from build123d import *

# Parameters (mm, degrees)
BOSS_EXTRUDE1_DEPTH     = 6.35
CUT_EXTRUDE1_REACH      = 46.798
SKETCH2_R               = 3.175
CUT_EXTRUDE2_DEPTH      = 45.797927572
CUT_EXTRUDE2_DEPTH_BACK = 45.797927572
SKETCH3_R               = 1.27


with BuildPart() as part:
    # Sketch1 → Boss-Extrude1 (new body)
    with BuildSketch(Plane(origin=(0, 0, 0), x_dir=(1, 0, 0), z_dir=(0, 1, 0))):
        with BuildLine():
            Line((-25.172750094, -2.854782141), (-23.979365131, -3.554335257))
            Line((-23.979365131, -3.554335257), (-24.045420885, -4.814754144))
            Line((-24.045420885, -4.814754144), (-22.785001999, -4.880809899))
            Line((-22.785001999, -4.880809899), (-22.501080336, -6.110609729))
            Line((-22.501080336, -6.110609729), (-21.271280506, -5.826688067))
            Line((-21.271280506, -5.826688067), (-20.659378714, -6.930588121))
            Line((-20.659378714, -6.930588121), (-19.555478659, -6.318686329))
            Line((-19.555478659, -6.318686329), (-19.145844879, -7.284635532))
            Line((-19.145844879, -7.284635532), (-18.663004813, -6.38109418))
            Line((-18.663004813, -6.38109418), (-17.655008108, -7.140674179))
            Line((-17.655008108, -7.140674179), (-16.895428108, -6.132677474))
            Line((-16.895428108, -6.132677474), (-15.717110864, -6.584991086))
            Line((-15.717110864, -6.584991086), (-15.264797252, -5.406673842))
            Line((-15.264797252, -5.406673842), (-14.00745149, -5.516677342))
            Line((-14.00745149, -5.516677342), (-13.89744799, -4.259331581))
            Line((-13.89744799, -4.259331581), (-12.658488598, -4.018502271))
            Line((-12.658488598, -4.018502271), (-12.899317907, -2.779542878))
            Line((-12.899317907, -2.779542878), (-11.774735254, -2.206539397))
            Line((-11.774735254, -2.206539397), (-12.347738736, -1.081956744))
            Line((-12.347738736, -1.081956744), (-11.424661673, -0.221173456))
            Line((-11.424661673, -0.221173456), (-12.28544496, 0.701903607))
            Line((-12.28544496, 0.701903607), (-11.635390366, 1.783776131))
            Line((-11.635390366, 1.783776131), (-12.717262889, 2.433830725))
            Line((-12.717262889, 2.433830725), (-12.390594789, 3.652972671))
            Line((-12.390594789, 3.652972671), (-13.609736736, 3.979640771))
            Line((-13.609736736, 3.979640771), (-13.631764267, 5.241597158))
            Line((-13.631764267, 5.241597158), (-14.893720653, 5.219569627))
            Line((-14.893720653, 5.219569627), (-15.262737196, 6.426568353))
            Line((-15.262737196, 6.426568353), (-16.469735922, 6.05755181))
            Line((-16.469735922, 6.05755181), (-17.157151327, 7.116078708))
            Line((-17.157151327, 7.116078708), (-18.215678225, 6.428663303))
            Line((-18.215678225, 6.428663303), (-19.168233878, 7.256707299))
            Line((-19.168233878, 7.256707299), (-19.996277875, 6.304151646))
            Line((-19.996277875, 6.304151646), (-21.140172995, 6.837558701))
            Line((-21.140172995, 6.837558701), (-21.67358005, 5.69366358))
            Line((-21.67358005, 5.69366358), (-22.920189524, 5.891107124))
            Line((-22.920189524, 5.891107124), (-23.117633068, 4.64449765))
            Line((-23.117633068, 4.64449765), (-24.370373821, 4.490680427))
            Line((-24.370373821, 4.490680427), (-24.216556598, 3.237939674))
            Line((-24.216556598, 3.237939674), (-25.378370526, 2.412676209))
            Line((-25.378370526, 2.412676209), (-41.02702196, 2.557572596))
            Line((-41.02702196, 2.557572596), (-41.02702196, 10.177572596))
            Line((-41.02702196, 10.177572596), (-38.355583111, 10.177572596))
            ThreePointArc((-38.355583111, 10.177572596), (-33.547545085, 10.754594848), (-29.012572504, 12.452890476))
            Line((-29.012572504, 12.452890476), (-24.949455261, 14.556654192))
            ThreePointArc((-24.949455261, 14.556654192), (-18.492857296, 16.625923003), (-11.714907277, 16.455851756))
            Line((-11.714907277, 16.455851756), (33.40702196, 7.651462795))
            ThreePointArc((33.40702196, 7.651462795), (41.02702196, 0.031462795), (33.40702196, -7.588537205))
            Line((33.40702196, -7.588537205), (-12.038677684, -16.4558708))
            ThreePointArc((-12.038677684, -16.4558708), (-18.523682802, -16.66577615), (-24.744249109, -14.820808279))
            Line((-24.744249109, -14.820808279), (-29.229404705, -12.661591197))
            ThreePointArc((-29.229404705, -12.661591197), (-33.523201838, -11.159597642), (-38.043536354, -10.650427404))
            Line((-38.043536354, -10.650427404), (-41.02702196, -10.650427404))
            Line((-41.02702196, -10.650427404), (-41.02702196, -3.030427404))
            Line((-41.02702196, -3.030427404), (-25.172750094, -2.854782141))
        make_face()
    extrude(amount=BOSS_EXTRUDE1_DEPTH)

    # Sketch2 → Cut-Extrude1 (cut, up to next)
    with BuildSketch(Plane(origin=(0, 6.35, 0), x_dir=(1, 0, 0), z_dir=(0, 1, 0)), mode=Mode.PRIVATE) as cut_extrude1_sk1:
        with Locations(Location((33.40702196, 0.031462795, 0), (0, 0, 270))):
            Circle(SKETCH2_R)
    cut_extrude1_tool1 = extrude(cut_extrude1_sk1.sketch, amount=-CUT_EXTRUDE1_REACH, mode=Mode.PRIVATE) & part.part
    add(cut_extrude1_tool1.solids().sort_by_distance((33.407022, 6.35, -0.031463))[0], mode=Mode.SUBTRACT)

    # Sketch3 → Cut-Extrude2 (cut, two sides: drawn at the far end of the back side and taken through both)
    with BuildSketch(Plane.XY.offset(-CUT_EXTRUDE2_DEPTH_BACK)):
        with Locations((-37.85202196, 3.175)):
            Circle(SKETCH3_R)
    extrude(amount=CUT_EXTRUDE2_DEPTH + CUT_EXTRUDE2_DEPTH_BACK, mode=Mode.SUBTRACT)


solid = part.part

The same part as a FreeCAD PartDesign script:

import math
import FreeCAD as App
import Part
import Sketcher

V = App.Vector
Q = App.Units.Quantity

doc = App.newDocument("Part")
body = doc.addObject("PartDesign::Body", "Body")

# Sketch on XZ plane
sketch1 = doc.addObject("Sketcher::SketchObject", "Sketch")
body.addObject(sketch1)
sketch1.AttachmentSupport = (doc.XZ_Plane, [""])
sketch1.MapMode = "FlatFace"
sketch1.addGeometry([
    Part.LineSegment(V(-23.979365, 3.554335, 0), V(-25.17275, 2.854782, 0)),  # 0
    Part.LineSegment(V(-25.17275, 2.854782, 0), V(-41.027022, 3.030427, 0)),  # 1
    Part.LineSegment(V(-41.027022, 3.030427, 0), V(-41.027022, 10.650427, 0)),  # 2
    Part.LineSegment(V(-41.027022, 10.650427, 0), V(-38.043536, 10.650427, 0)),  # 3
    Part.ArcOfCircle(Part.Circle(V(-38.043536, 30.970427, 0), V(0, 0, 1), 20.32), math.radians(-90), math.radians(-64.293181)),  # 4
    Part.LineSegment(V(-29.229405, 12.661591, 0), V(-24.744249, 14.820808, 0)),  # 5
    Part.ArcOfCircle(Part.Circle(V(-15.930117, -3.488028, 0), V(0, 0, 1), 20.32), math.radians(78.959206), math.radians(115.706819)),  # 6
    Part.LineSegment(V(-12.038678, 16.455871, 0), V(33.407022, 7.588537, 0)),  # 7
    Part.ArcOfCircle(Part.Circle(V(33.407022, -0.031463, 0), V(0, 0, 1), 7.62), math.radians(-90), math.radians(90)),  # 8
    Part.LineSegment(V(33.407022, -7.651463, 0), V(-11.714907, -16.455852, 0)),  # 9
    Part.ArcOfCircle(Part.Circle(V(-15.606445, 3.488028, 0), V(0, 0, 1), 20.32), math.radians(-117.373804), math.radians(-78.958925)),  # 10
    Part.LineSegment(V(-24.949455, -14.556654, 0), V(-29.012573, -12.45289, 0)),  # 11
    Part.ArcOfCircle(Part.Circle(V(-38.355583, -30.497573, 0), V(0, 0, 1), 20.32), math.radians(62.626196), math.radians(90)),  # 12
    Part.LineSegment(V(-38.355583, -10.177573, 0), V(-41.027022, -10.177573, 0)),  # 13
    Part.LineSegment(V(-41.027022, -10.177573, 0), V(-41.027022, -2.557573, 0)),  # 14
    Part.LineSegment(V(-41.027022, -2.557573, 0), V(-25.378371, -2.412676, 0)),  # 15
    Part.LineSegment(V(-25.378371, -2.412676, 0), V(-24.216557, -3.23794, 0)),  # 16
    Part.LineSegment(V(-24.216557, -3.23794, 0), V(-24.370374, -4.49068, 0)),  # 17
    Part.LineSegment(V(-24.370374, -4.49068, 0), V(-23.117633, -4.644498, 0)),  # 18
    Part.LineSegment(V(-23.117633, -4.644498, 0), V(-22.92019, -5.891107, 0)),  # 19
    Part.LineSegment(V(-22.92019, -5.891107, 0), V(-21.67358, -5.693664, 0)),  # 20
    Part.LineSegment(V(-21.67358, -5.693664, 0), V(-21.140173, -6.837559, 0)),  # 21
    Part.LineSegment(V(-21.140173, -6.837559, 0), V(-19.996278, -6.304152, 0)),  # 22
    Part.LineSegment(V(-19.996278, -6.304152, 0), V(-19.168234, -7.256707, 0)),  # 23
    Part.LineSegment(V(-19.168234, -7.256707, 0), V(-18.215678, -6.428663, 0)),  # 24
    Part.LineSegment(V(-18.215678, -6.428663, 0), V(-17.157151, -7.116079, 0)),  # 25
    Part.LineSegment(V(-17.157151, -7.116079, 0), V(-16.469736, -6.057552, 0)),  # 26
    Part.LineSegment(V(-16.469736, -6.057552, 0), V(-15.262737, -6.426568, 0)),  # 27
    Part.LineSegment(V(-15.262737, -6.426568, 0), V(-14.893721, -5.21957, 0)),  # 28
    Part.LineSegment(V(-14.893721, -5.21957, 0), V(-13.631764, -5.241597, 0)),  # 29
    Part.LineSegment(V(-13.631764, -5.241597, 0), V(-13.609737, -3.979641, 0)),  # 30
    Part.LineSegment(V(-13.609737, -3.979641, 0), V(-12.390595, -3.652973, 0)),  # 31
    Part.LineSegment(V(-12.390595, -3.652973, 0), V(-12.717263, -2.433831, 0)),  # 32
    Part.LineSegment(V(-12.717263, -2.433831, 0), V(-11.63539, -1.783776, 0)),  # 33
    Part.LineSegment(V(-11.63539, -1.783776, 0), V(-12.285445, -0.701904, 0)),  # 34
    Part.LineSegment(V(-12.285445, -0.701904, 0), V(-11.424662, 0.221173, 0)),  # 35
    Part.LineSegment(V(-11.424662, 0.221173, 0), V(-12.347739, 1.081957, 0)),  # 36
    Part.LineSegment(V(-12.347739, 1.081957, 0), V(-11.774735, 2.206539, 0)),  # 37
    Part.LineSegment(V(-11.774735, 2.206539, 0), V(-12.899318, 2.779543, 0)),  # 38
    Part.LineSegment(V(-12.899318, 2.779543, 0), V(-12.658489, 4.018502, 0)),  # 39
    Part.LineSegment(V(-12.658489, 4.018502, 0), V(-13.897448, 4.259332, 0)),  # 40
    Part.LineSegment(V(-13.897448, 4.259332, 0), V(-14.007451, 5.516677, 0)),  # 41
    Part.LineSegment(V(-14.007451, 5.516677, 0), V(-15.264797, 5.406674, 0)),  # 42
    Part.LineSegment(V(-15.264797, 5.406674, 0), V(-15.717111, 6.584991, 0)),  # 43
    Part.LineSegment(V(-15.717111, 6.584991, 0), V(-16.895428, 6.132677, 0)),  # 44
    Part.LineSegment(V(-16.895428, 6.132677, 0), V(-17.655008, 7.140674, 0)),  # 45
    Part.LineSegment(V(-17.655008, 7.140674, 0), V(-18.663005, 6.381094, 0)),  # 46
    Part.LineSegment(V(-18.663005, 6.381094, 0), V(-19.145845, 7.284636, 0)),  # 47
    Part.LineSegment(V(-19.145845, 7.284636, 0), V(-19.555479, 6.318686, 0)),  # 48
    Part.LineSegment(V(-19.555479, 6.318686, 0), V(-20.659379, 6.930588, 0)),  # 49
    Part.LineSegment(V(-20.659379, 6.930588, 0), V(-21.271281, 5.826688, 0)),  # 50
    Part.LineSegment(V(-21.271281, 5.826688, 0), V(-22.50108, 6.11061, 0)),  # 51
    Part.LineSegment(V(-22.50108, 6.11061, 0), V(-22.785002, 4.88081, 0)),  # 52
    Part.LineSegment(V(-22.785002, 4.88081, 0), V(-24.045421, 4.814754, 0)),  # 53
    Part.LineSegment(V(-24.045421, 4.814754, 0), V(-23.979365, 3.554335, 0)),  # 54
], False)
sketch1.addConstraint([
    Sketcher.Constraint("Coincident", 0, 2, 1, 1),
    Sketcher.Constraint("Coincident", 1, 2, 2, 1),
    Sketcher.Constraint("Coincident", 2, 2, 3, 1),
    Sketcher.Constraint("Tangent", 3, 2, 4, 1),
    Sketcher.Constraint("Tangent", 4, 2, 5, 1),
    Sketcher.Constraint("Tangent", 5, 2, 6, 2),
    Sketcher.Constraint("Tangent", 6, 1, 7, 1),
    Sketcher.Constraint("Coincident", 7, 2, 8, 2),
    Sketcher.Constraint("Coincident", 8, 1, 9, 1),
    Sketcher.Constraint("Tangent", 9, 2, 10, 2),
    Sketcher.Constraint("Tangent", 10, 1, 11, 1),
    Sketcher.Constraint("Tangent", 11, 2, 12, 1),
    Sketcher.Constraint("Tangent", 12, 2, 13, 1),
    Sketcher.Constraint("Coincident", 13, 2, 14, 1),
    Sketcher.Constraint("Coincident", 14, 2, 15, 1),
    Sketcher.Constraint("Coincident", 15, 2, 16, 1),
    Sketcher.Constraint("Coincident", 16, 2, 17, 1),
    Sketcher.Constraint("Coincident", 17, 2, 18, 1),
    Sketcher.Constraint("Coincident", 18, 2, 19, 1),
    Sketcher.Constraint("Coincident", 19, 2, 20, 1),
    Sketcher.Constraint("Coincident", 20, 2, 21, 1),
    Sketcher.Constraint("Coincident", 21, 2, 22, 1),
    Sketcher.Constraint("Coincident", 22, 2, 23, 1),
    Sketcher.Constraint("Coincident", 23, 2, 24, 1),
    Sketcher.Constraint("Coincident", 24, 2, 25, 1),
    Sketcher.Constraint("Coincident", 25, 2, 26, 1),
    Sketcher.Constraint("Coincident", 26, 2, 27, 1),
    Sketcher.Constraint("Coincident", 27, 2, 28, 1),
    Sketcher.Constraint("Coincident", 28, 2, 29, 1),
    Sketcher.Constraint("Coincident", 29, 2, 30, 1),
    Sketcher.Constraint("Coincident", 30, 2, 31, 1),
    Sketcher.Constraint("Coincident", 31, 2, 32, 1),
    Sketcher.Constraint("Coincident", 32, 2, 33, 1),
    Sketcher.Constraint("Coincident", 33, 2, 34, 1),
    Sketcher.Constraint("Coincident", 34, 2, 35, 1),
    Sketcher.Constraint("Coincident", 35, 2, 36, 1),
    Sketcher.Constraint("Coincident", 36, 2, 37, 1),
    Sketcher.Constraint("Coincident", 37, 2, 38, 1),
    Sketcher.Constraint("Coincident", 38, 2, 39, 1),
    Sketcher.Constraint("Coincident", 39, 2, 40, 1),
    Sketcher.Constraint("Coincident", 40, 2, 41, 1),
    Sketcher.Constraint("Coincident", 41, 2, 42, 1),
    Sketcher.Constraint("Coincident", 42, 2, 43, 1),
    Sketcher.Constraint("Coincident", 43, 2, 44, 1),
    Sketcher.Constraint("Coincident", 44, 2, 45, 1),
    Sketcher.Constraint("Coincident", 45, 2, 46, 1),
    Sketcher.Constraint("Coincident", 46, 2, 47, 1),
    Sketcher.Constraint("Coincident", 47, 2, 48, 1),
    Sketcher.Constraint("Coincident", 48, 2, 49, 1),
    Sketcher.Constraint("Coincident", 49, 2, 50, 1),
    Sketcher.Constraint("Coincident", 50, 2, 51, 1),
    Sketcher.Constraint("Coincident", 51, 2, 52, 1),
    Sketcher.Constraint("Coincident", 52, 2, 53, 1),
    Sketcher.Constraint("Coincident", 53, 2, 54, 1),
    Sketcher.Constraint("Coincident", 54, 2, 0, 1),
    Sketcher.Constraint("Vertical", 2),
    Sketcher.Constraint("Horizontal", 3),
    Sketcher.Constraint("Horizontal", 13),
    Sketcher.Constraint("Vertical", 14),
    Sketcher.Constraint("Equal", 4, 6),
    Sketcher.Constraint("Equal", 6, 10),
    Sketcher.Constraint("Equal", 10, 12),
    Sketcher.Constraint("Perpendicular", 17, 18),
    Sketcher.Constraint("Perpendicular", 19, 20),
    Sketcher.Constraint("Perpendicular", 21, 22),
    Sketcher.Constraint("Perpendicular", 23, 24),
    Sketcher.Constraint("Perpendicular", 25, 26),
    Sketcher.Constraint("Perpendicular", 27, 28),
    Sketcher.Constraint("Perpendicular", 29, 30),
    Sketcher.Constraint("Perpendicular", 31, 32),
    Sketcher.Constraint("Perpendicular", 33, 34),
    Sketcher.Constraint("Perpendicular", 35, 36),
    Sketcher.Constraint("Perpendicular", 37, 38),
    Sketcher.Constraint("Perpendicular", 39, 40),
    Sketcher.Constraint("Perpendicular", 41, 42),
    Sketcher.Constraint("Perpendicular", 43, 44),
    Sketcher.Constraint("Perpendicular", 45, 46),
    Sketcher.Constraint("Perpendicular", 49, 50),
    Sketcher.Constraint("Perpendicular", 51, 52),
    Sketcher.Constraint("Perpendicular", 53, 54),
    Sketcher.Constraint("Vertical", 8, 3, 7, 2),
    Sketcher.Constraint("Vertical", 7, 2, 8, 1),
    Sketcher.Constraint("Vertical", 2, 2, 13, 2),
    Sketcher.Constraint("Equal", 2, 14),
    Sketcher.Constraint("Equal", 17, 18),
    Sketcher.Constraint("Equal", 18, 19),
    Sketcher.Constraint("Equal", 19, 20),
    Sketcher.Constraint("Equal", 20, 21),
    Sketcher.Constraint("Equal", 21, 22),
    Sketcher.Constraint("Equal", 22, 23),
    Sketcher.Constraint("Equal", 23, 24),
    Sketcher.Constraint("Equal", 24, 25),
    Sketcher.Constraint("Equal", 25, 26),
    Sketcher.Constraint("Equal", 26, 27),
    Sketcher.Constraint("Equal", 27, 28),
    Sketcher.Constraint("Equal", 28, 29),
    Sketcher.Constraint("Equal", 29, 30),
    Sketcher.Constraint("Equal", 30, 31),
    Sketcher.Constraint("Equal", 31, 32),
    Sketcher.Constraint("Equal", 32, 33),
    Sketcher.Constraint("Equal", 33, 34),
    Sketcher.Constraint("Equal", 34, 35),
    Sketcher.Constraint("Equal", 35, 36),
    Sketcher.Constraint("Equal", 36, 37),
    Sketcher.Constraint("Equal", 37, 38),
    Sketcher.Constraint("Equal", 38, 39),
    Sketcher.Constraint("Equal", 39, 40),
    Sketcher.Constraint("Equal", 40, 41),
    Sketcher.Constraint("Equal", 41, 42),
    Sketcher.Constraint("Equal", 42, 43),
    Sketcher.Constraint("Equal", 43, 44),
    Sketcher.Constraint("Equal", 44, 45),
    Sketcher.Constraint("Equal", 45, 46),
    Sketcher.Constraint("Equal", 46, 49),
    Sketcher.Constraint("Equal", 49, 50),
    Sketcher.Constraint("Equal", 50, 51),
    Sketcher.Constraint("Equal", 51, 52),
    Sketcher.Constraint("Equal", 52, 53),
    Sketcher.Constraint("Equal", 53, 54),
    Sketcher.Constraint("Radius", 4, Q("0.8 in")),
    Sketcher.Constraint("Radius", 8, Q("0.3 in")),
    Sketcher.Constraint("DistanceY", 2, 1, 2, 2, Q("0.3 in")),
    Sketcher.Constraint("Angle", 17, Q("-97 deg")),
    Sketcher.Constraint("Angle", 19, Q("-81 deg")),
    Sketcher.Constraint("Angle", 21, Q("-65 deg")),
    Sketcher.Constraint("Angle", 23, Q("-49 deg")),
    Sketcher.Constraint("Angle", 25, Q("-33 deg")),
    Sketcher.Constraint("Angle", 27, Q("-17 deg")),
    Sketcher.Constraint("Angle", 29, Q("-1 deg")),
    Sketcher.Constraint("Angle", 31, Q("15 deg")),
    Sketcher.Constraint("Angle", 33, Q("31 deg")),
    Sketcher.Constraint("Angle", 35, Q("47 deg")),
    Sketcher.Constraint("Angle", 37, Q("63 deg")),
    Sketcher.Constraint("Angle", 39, Q("79 deg")),
    Sketcher.Constraint("Angle", 41, Q("95 deg")),
    Sketcher.Constraint("Angle", 43, Q("111 deg")),
    Sketcher.Constraint("Angle", 45, Q("127 deg")),
    Sketcher.Constraint("Angle", 49, Q("151 deg")),
    Sketcher.Constraint("Angle", 51, Q("167 deg")),
    Sketcher.Constraint("Angle", 53, Q("-177 deg")),
    Sketcher.Constraint("DistanceY", 12, 3, 4, 3, Q("2.42 in")),
    Sketcher.Constraint("DistanceX", 22, 2, 23, 2, Q("0.0326002 in")),
    Sketcher.Constraint("DistanceX", 13, 2, 13, 1, Q("2.671439 mm")),
    Sketcher.Constraint("DistanceX", 52, 2, -1, 1, Q("22.785002 mm")),
    Sketcher.Constraint("DistanceY", 10, 3, 4, 3, Q("27.482399 mm")),
    Sketcher.Constraint("DistanceX", 0, 2, 5, 2, Q("0.428501 mm")),
    Sketcher.Constraint("DistanceY", 6, 3, 6, 1, Q("19.943899 mm")),
    Sketcher.Constraint("DistanceX", 6, 1, 7, 2, Q("45.4457 mm")),
    Sketcher.Constraint("DistanceX", 11, 2, 15, 2, Q("3.634202 mm")),
    Sketcher.Constraint("DistanceX", 11, 2, 17, 2, Q("4.642199 mm")),
    Sketcher.Constraint("Distance", 0, Q("1.383308 mm")),
    Sketcher.Constraint("Distance", 9, Q("45.972881 mm")),
    Sketcher.Constraint("Distance", 11, Q("4.57545 mm")),
    Sketcher.Constraint("Distance", 47, Q("1.024462 mm")),
    Sketcher.Constraint("DistanceX", 3, 1, 3, 2, Q("2.983486 mm")),
    Sketcher.Constraint("DistanceX", -1, 1, 8, 3, Q("33.407022 mm")),
    Sketcher.Constraint("DistanceX", 0, 2, -1, 1, Q("25.17275 mm")),
    Sketcher.Constraint("DistanceY", -1, 1, 4, 2, Q("12.661591 mm")),
    Sketcher.Constraint("DistanceY", 16, 2, -1, 1, Q("3.23794 mm")),
    Sketcher.Constraint("DistanceY", -1, 1, 49, 2, Q("6.930588 mm")),
    Sketcher.Constraint("DistanceY", 15, 2, 0, 2, Q("5.267458 mm")),
    Sketcher.Constraint("DistanceX", 47, 2, 46, 2, Q("0.48284 mm")),
])
pad1 = doc.addObject("PartDesign::Pad", "Pad")
body.addObject(pad1)
pad1.Profile = sketch1
pad1.Length = Q("0.25 in")
pad1.Reversed = True

# Sketch on XZ plane
sketch2 = doc.addObject("Sketcher::SketchObject", "Sketch001")
body.addObject(sketch2)
sketch2.AttachmentSupport = (doc.XZ_Plane, [""])
sketch2.MapMode = "FlatFace"
sketch2.AttachmentOffset = App.Placement(V(0, 0, -0.25 * 25.4), App.Rotation())
sketch2.addGeometry(Part.Circle(V(33.407022, -0.031463, 0), V(0, 0, 1), 3.175), False)
sketch2.addConstraint([
    Sketcher.Constraint("Diameter", 0, Q("0.25 in")),
    Sketcher.Constraint("DistanceX", -1, 1, 0, 3, Q("33.407022 mm")),
    Sketcher.Constraint("DistanceY", 0, 3, -1, 1, Q("0.031463 mm")),
])
pocket1 = doc.addObject("PartDesign::Pocket", "Pocket")
body.addObject(pocket1)
pocket1.Profile = sketch2
pocket1.Type = "UpToFirst"
pocket1.Reversed = True

# Sketch on XY plane
sketch3 = doc.addObject("Sketcher::SketchObject", "Sketch002")
body.addObject(sketch3)
sketch3.AttachmentSupport = (doc.XY_Plane, [""])
sketch3.MapMode = "FlatFace"
sketch3.addGeometry(Part.Circle(V(-37.852022, 3.175, 0), V(0, 0, 1), 1.27), False)
sketch3.addConstraint([
    Sketcher.Constraint("Diameter", 0, Q("0.1 in")),
    Sketcher.Constraint("DistanceY", -1, 1, 0, 3, Q("0.125 in")),
    Sketcher.Constraint("DistanceX", 0, 3, -1, 1, Q("37.852022 mm")),
])
pocket2 = doc.addObject("PartDesign::Pocket", "Pocket001")
body.addObject(pocket2)
pocket2.Profile = sketch3
pocket2.Type = "ThroughAll"
pocket2.Midplane = True

doc.recompute()
